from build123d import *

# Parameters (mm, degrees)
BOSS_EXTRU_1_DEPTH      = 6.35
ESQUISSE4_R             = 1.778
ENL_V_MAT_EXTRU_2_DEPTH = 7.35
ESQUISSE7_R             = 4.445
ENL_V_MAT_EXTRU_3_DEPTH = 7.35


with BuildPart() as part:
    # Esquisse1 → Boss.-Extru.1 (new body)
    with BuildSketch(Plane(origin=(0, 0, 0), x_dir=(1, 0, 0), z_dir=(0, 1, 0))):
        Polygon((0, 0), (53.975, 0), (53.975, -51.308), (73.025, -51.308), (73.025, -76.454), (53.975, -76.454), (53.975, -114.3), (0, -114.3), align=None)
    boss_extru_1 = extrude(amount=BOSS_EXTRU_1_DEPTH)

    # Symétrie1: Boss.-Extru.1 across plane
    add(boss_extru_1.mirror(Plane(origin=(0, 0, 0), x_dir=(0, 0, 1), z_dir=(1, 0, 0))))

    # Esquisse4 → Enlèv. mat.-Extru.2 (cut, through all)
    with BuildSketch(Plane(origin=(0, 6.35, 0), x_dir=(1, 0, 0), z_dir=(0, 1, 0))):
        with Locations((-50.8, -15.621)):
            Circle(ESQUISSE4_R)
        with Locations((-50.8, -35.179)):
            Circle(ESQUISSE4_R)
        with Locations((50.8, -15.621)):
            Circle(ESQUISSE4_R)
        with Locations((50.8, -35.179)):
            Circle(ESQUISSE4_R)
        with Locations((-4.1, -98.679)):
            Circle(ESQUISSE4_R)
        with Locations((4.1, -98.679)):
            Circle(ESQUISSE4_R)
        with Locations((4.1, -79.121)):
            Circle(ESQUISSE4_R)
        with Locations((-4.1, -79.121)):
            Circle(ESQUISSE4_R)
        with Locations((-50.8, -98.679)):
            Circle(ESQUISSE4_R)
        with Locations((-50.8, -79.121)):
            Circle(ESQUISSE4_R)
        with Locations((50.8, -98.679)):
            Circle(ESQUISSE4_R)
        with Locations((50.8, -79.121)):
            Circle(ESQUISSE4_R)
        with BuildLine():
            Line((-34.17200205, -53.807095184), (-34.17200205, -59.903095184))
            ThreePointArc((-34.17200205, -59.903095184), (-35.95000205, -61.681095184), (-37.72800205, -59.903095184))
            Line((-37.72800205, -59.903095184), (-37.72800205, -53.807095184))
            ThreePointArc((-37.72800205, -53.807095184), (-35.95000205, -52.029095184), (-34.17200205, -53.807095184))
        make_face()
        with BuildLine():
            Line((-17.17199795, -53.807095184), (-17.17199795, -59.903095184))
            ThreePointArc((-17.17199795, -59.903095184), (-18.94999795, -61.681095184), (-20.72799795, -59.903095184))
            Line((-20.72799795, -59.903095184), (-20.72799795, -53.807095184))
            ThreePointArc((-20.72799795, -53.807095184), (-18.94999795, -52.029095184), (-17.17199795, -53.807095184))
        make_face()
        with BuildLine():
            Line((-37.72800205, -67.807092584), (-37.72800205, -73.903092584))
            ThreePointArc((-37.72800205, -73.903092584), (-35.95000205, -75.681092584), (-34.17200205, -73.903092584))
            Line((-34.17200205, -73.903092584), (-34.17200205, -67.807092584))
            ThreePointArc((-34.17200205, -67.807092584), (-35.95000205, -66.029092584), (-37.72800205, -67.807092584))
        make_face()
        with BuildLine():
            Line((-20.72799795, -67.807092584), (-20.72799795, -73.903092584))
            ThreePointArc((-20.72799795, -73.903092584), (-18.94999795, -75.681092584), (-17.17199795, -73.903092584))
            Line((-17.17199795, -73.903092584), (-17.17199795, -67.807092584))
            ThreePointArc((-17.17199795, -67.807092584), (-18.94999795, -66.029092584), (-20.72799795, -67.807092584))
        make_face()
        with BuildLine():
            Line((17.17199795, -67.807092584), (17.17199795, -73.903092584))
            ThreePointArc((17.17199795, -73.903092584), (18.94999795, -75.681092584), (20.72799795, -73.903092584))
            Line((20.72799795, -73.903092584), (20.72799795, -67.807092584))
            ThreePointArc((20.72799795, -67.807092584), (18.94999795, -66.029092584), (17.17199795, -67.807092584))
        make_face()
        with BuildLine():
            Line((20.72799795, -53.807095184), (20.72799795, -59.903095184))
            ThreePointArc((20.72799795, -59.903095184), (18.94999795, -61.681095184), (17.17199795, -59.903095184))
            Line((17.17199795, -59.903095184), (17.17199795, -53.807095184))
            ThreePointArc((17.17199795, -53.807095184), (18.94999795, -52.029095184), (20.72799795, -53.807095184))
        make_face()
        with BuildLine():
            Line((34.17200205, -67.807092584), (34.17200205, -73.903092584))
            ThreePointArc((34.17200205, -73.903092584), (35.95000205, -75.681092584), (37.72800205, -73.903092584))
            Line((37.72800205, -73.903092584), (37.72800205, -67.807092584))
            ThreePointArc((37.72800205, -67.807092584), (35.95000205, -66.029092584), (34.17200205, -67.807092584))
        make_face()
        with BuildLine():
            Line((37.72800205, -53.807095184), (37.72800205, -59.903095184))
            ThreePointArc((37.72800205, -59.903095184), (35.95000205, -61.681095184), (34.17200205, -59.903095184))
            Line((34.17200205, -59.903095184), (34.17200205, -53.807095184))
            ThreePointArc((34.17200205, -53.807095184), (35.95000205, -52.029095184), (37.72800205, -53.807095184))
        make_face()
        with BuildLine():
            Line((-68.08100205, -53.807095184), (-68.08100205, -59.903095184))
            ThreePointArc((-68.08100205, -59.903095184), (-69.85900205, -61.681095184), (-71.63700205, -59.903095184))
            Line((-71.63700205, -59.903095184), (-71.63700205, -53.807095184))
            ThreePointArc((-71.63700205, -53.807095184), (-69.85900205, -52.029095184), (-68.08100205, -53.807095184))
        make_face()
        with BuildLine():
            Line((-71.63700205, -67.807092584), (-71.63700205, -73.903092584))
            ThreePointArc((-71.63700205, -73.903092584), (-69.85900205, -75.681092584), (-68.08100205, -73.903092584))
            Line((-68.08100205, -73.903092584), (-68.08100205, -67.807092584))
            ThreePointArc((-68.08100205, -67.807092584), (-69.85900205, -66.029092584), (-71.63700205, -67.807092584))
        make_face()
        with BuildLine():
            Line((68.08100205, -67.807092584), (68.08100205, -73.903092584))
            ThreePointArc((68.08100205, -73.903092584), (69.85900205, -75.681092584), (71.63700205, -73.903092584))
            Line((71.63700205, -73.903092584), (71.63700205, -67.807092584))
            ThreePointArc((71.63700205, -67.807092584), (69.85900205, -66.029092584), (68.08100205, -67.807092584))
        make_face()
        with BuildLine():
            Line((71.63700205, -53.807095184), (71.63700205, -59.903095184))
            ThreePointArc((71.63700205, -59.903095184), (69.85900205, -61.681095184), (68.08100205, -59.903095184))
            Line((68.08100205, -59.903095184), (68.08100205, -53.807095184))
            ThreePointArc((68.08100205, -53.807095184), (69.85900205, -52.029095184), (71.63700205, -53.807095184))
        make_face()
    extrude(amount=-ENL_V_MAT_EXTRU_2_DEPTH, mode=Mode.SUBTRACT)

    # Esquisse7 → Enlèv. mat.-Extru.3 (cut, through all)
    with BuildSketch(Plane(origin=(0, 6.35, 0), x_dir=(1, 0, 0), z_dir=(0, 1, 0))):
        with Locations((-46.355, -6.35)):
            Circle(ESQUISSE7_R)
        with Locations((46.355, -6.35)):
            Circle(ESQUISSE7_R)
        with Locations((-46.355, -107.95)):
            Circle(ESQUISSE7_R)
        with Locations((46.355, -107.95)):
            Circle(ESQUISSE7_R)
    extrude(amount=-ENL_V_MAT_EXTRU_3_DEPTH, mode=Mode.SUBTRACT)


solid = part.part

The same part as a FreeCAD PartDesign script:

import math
import FreeCAD as App
import Part
import Sketcher
from FreeCAD import Vector
Q = App.Units.Quantity


def add_polygon(sketch, points):
    """Adds a closed chain of lines whose ends are joined by coincident constraints."""
    first, n = sketch.GeometryCount, len(points)
    for a, b in zip(points, points[1:] + points[:1]):
        sketch.addGeometry(Part.LineSegment(App.Vector(*a, 0), App.Vector(*b, 0)), False)
    for i in range(n):
        sketch.addConstraint(Sketcher.Constraint("Coincident", first + i, 2, first + (i + 1) % n, 1))

doc = App.newDocument("Part")
body = doc.addObject("PartDesign::Body", "Body")

sketch1 = body.newObject("Sketcher::SketchObject", "Sketch")
sketch1.AttachmentSupport = (doc.getObject("XZ_Plane"), [""])
sketch1.MapMode = "FlatFace"
add_polygon(sketch1, [(54, 0), (0, 0), (0, 114), (54, 114), (54, 76), (73, 76), (73, 51), (54, 51)])
sketch1.addConstraint(Sketcher.Constraint("Horizontal", 0))
sketch1.addConstraint(Sketcher.Constraint("Vertical", 1))
sketch1.addConstraint(Sketcher.Constraint("Horizontal", 2))
sketch1.addConstraint(Sketcher.Constraint("Vertical", 3))
sketch1.addConstraint(Sketcher.Constraint("Horizontal", 4))
sketch1.addConstraint(Sketcher.Constraint("Vertical", 5))
sketch1.addConstraint(Sketcher.Constraint("Horizontal", 6))
sketch1.addConstraint(Sketcher.Constraint("Vertical", 7))
sketch1.addConstraint(Sketcher.Constraint("Coincident", 0, 2, -1, 1))
sketch1.addConstraint(Sketcher.Constraint("Vertical", 3, 2, 6, 2))
sketch1.addConstraint(Sketcher.Constraint("DistanceY", 1, 1, 1, 2, Q("4.5 in")))
sketch1.addConstraint(Sketcher.Constraint("DistanceX", 4, 1, 4, 2, Q("0.75 in")))
sketch1.addConstraint(Sketcher.Constraint("DistanceY", 3, 2, 3, 1, Q("1.49 in")))
sketch1.addConstraint(Sketcher.Constraint("DistanceY", 5, 2, 5, 1, Q("0.99 in")))
sketch1.addConstraint(Sketcher.Constraint("DistanceX", 0, 2, 0, 1, Q("2.125 in")))
pad1 = body.newObject("PartDesign::Pad", "Pad")
pad1.Profile = sketch1
pad1.Length = Q("0.25 in")
pad1.Reversed = True
doc.recompute()

mirrored = body.newObject("PartDesign::Mirrored", "Mirrored")
mirrored.Originals = [pad1]
mirrored.MirrorPlane = (doc.getObject("YZ_Plane"), [""])
body.Tip = mirrored

sketch2 = body.newObject("Sketcher::SketchObject", "Sketch001")
sketch2.AttachmentSupport = (doc.getObject("XZ_Plane"), [""])
sketch2.MapMode = "FlatFace"
sketch2.AttachmentOffset = App.Placement(Vector(0, 0, -0.25 * 25.4), App.Rotation())
sketch2.addGeometry(Part.Circle(Vector(-50.8, 15.6, 0), Vector(0, 0, 1), 1.8), False)
sketch2.addGeometry(Part.Circle(Vector(-50.8, 35.2, 0), Vector(0, 0, 1), 1.8), False)
sketch2.addGeometry(Part.Circle(Vector(50.8, 15.6, 0), Vector(0, 0, 1), 1.8), False)
sketch2.addGeometry(Part.Circle(Vector(50.8, 35.2, 0), Vector(0, 0, 1), 1.8), False)
sketch2.addGeometry(Part.Circle(Vector(-4.1, 98.7, 0), Vector(0, 0, 1), 1.8), False)
sketch2.addGeometry(Part.Circle(Vector(4.1, 98.7, 0), Vector(0, 0, 1), 1.8), False)
sketch2.addGeometry(Part.Circle(Vector(4.1, 79.1, 0), Vector(0, 0, 1), 1.8), False)
sketch2.addGeometry(Part.Circle(Vector(-4.1, 79.1, 0), Vector(0, 0, 1), 1.8), False)
sketch2.addGeometry(Part.Circle(Vector(-50.8, 98.7, 0), Vector(0, 0, 1), 1.8), False)
sketch2.addGeometry(Part.Circle(Vector(-50.8, 79.1, 0), Vector(0, 0, 1), 1.8), False)
sketch2.addGeometry(Part.Circle(Vector(50.8, 98.7, 0), Vector(0, 0, 1), 1.8), False)
sketch2.addGeometry(Part.Circle(Vector(50.8, 79.1, 0), Vector(0, 0, 1), 1.8), False)
sketch2.addGeometry(Part.LineSegment(Vector(-34.2, 59.9, 0), Vector(-34.2, 53.8, 0)), False)
sketch2.addGeometry(Part.ArcOfCircle(Part.Circle(Vector(-36, 53.8, 0), Vector(0, 0, 1), 1.8), math.radians(180), math.radians(360)), False)
sketch2.addGeometry(Part.LineSegment(Vector(-37.7, 53.8, 0), Vector(-37.7, 59.9, 0)), False)
sketch2.addGeometry(Part.ArcOfCircle(Part.Circle(Vector(-36, 59.9, 0), Vector(0, 0, 1), 1.8), math.radians(0), math.radians(180)), False)
sketch2.addGeometry(Part.LineSegment(Vector(-17.2, 59.9, 0), Vector(-17.2, 53.8, 0)), False)
sketch2.addGeometry(Part.ArcOfCircle(Part.Circle(Vector(-18.9, 53.8, 0), Vector(0, 0, 1), 1.8), math.radians(180), math.radians(360)), False)
sketch2.addGeometry(Part.LineSegment(Vector(-20.7, 53.8, 0), Vector(-20.7, 59.9, 0)), False)
sketch2.addGeometry(Part.ArcOfCircle(Part.Circle(Vector(-18.9, 59.9, 0), Vector(0, 0, 1), 1.8), math.radians(0), math.radians(180)), False)
sketch2.addGeometry(Part.LineSegment(Vector(-37.7, 67.8, 0), Vector(-37.7, 73.9, 0)), False)
sketch2.addGeometry(Part.ArcOfCircle(Part.Circle(Vector(-36, 73.9, 0), Vector(0, 0, 1), 1.8), math.radians(0), math.radians(180)), False)
sketch2.addGeometry(Part.LineSegment(Vector(-34.2, 73.9, 0), Vector(-34.2, 67.8, 0)), False)
sketch2.addGeometry(Part.ArcOfCircle(Part.Circle(Vector(-36, 67.8, 0), Vector(0, 0, 1), 1.8), math.radians(180), math.radians(360)), False)
sketch2.addGeometry(Part.LineSegment(Vector(-20.7, 67.8, 0), Vector(-20.7, 73.9, 0)), False)
sketch2.addGeometry(Part.ArcOfCircle(Part.Circle(Vector(-18.9, 73.9, 0), Vector(0, 0, 1), 1.8), math.radians(0), math.radians(180)), False)
sketch2.addGeometry(Part.LineSegment(Vector(-17.2, 73.9, 0), Vector(-17.2, 67.8, 0)), False)
sketch2.addGeometry(Part.ArcOfCircle(Part.Circle(Vector(-18.9, 67.8, 0), Vector(0, 0, 1), 1.8), math.radians(180), math.radians(360)), False)
sketch2.addGeometry(Part.LineSegment(Vector(17.2, 67.8, 0), Vector(17.2, 73.9, 0)), False)
sketch2.addGeometry(Part.ArcOfCircle(Part.Circle(Vector(18.9, 73.9, 0), Vector(0, 0, 1), 1.8), math.radians(0), math.radians(180)), False)
sketch2.addGeometry(Part.LineSegment(Vector(20.7, 73.9, 0), Vector(20.7, 67.8, 0)), False)
sketch2.addGeometry(Part.ArcOfCircle(Part.Circle(Vector(18.9, 67.8, 0), Vector(0, 0, 1), 1.8), math.radians(180), math.radians(360)), False)
sketch2.addGeometry(Part.LineSegment(Vector(20.7, 59.9, 0), Vector(20.7, 53.8, 0)), False)
sketch2.addGeometry(Part.ArcOfCircle(Part.Circle(Vector(18.9, 53.8, 0), Vector(0, 0, 1), 1.8), math.radians(180), math.radians(360)), False)
sketch2.addGeometry(Part.LineSegment(Vector(17.2, 53.8, 0), Vector(17.2, 59.9, 0)), False)
sketch2.addGeometry(Part.ArcOfCircle(Part.Circle(Vector(18.9, 59.9, 0), Vector(0, 0, 1), 1.8), math.radians(0), math.radians(180)), False)
sketch2.addGeometry(Part.LineSegment(Vector(34.2, 67.8, 0), Vector(34.2, 73.9, 0)), False)
sketch2.addGeometry(Part.ArcOfCircle(Part.Circle(Vector(36, 73.9, 0), Vector(0, 0, 1), 1.8), math.radians(0), math.radians(180)), False)
sketch2.addGeometry(Part.LineSegment(Vector(37.7, 73.9, 0), Vector(37.7, 67.8, 0)), False)
sketch2.addGeometry(Part.ArcOfCircle(Part.Circle(Vector(36, 67.8, 0), Vector(0, 0, 1), 1.8), math.radians(180), math.radians(360)), False)
sketch2.addGeometry(Part.LineSegment(Vector(37.7, 59.9, 0), Vector(37.7, 53.8, 0)), False)
sketch2.addGeometry(Part.ArcOfCircle(Part.Circle(Vector(36, 53.8, 0), Vector(0, 0, 1), 1.8), math.radians(180), math.radians(360)), False)
sketch2.addGeometry(Part.LineSegment(Vector(34.2, 53.8, 0), Vector(34.2, 59.9, 0)), False)
sketch2.addGeometry(Part.ArcOfCircle(Part.Circle(Vector(36, 59.9, 0), Vector(0, 0, 1), 1.8), math.radians(0), math.radians(180)), False)
sketch2.addGeometry(Part.LineSegment(Vector(-68.1, 59.9, 0), Vector(-68.1, 53.8, 0)), False)
sketch2.addGeometry(Part.ArcOfCircle(Part.Circle(Vector(-69.9, 53.8, 0), Vector(0, 0, 1), 1.8), math.radians(180), math.radians(360)), False)
sketch2.addGeometry(Part.LineSegment(Vector(-71.6, 53.8, 0), Vector(-71.6, 59.9, 0)), False)
sketch2.addGeometry(Part.ArcOfCircle(Part.Circle(Vector(-69.9, 59.9, 0), Vector(0, 0, 1), 1.8), math.radians(0), math.radians(180)), False)
sketch2.addGeometry(Part.LineSegment(Vector(-71.6, 67.8, 0), Vector(-71.6, 73.9, 0)), False)
sketch2.addGeometry(Part.ArcOfCircle(Part.Circle(Vector(-69.9, 73.9, 0), Vector(0, 0, 1), 1.8), math.radians(0), math.radians(180)), False)
sketch2.addGeometry(Part.LineSegment(Vector(-68.1, 73.9, 0), Vector(-68.1, 67.8, 0)), False)
sketch2.addGeometry(Part.ArcOfCircle(Part.Circle(Vector(-69.9, 67.8, 0), Vector(0, 0, 1), 1.8), math.radians(180), math.radians(360)), False)
sketch2.addGeometry(Part.LineSegment(Vector(68.1, 67.8, 0), Vector(68.1, 73.9, 0)), False)
sketch2.addGeometry(Part.ArcOfCircle(Part.Circle(Vector(69.9, 73.9, 0), Vector(0, 0, 1), 1.8), math.radians(0), math.radians(180)), False)
sketch2.addGeometry(Part.LineSegment(Vector(71.6, 73.9, 0), Vector(71.6, 67.8, 0)), False)
sketch2.addGeometry(Part.ArcOfCircle(Part.Circle(Vector(69.9, 67.8, 0), Vector(0, 0, 1), 1.8), math.radians(180), math.radians(360)), False)
sketch2.addGeometry(Part.LineSegment(Vector(71.6, 59.9, 0), Vector(71.6, 53.8, 0)), False)
sketch2.addGeometry(Part.ArcOfCircle(Part.Circle(Vector(69.9, 53.8, 0), Vector(0, 0, 1), 1.8), math.radians(180), math.radians(360)), False)
sketch2.addGeometry(Part.LineSegment(Vector(68.1, 53.8, 0), Vector(68.1, 59.9, 0)), False)
sketch2.addGeometry(Part.ArcOfCircle(Part.Circle(Vector(69.9, 59.9, 0), Vector(0, 0, 1), 1.8), math.radians(0), math.radians(180)), False)
sketch2.addConstraint(Sketcher.Constraint("Tangent", 12, 2, 13, 2))
sketch2.addConstraint(Sketcher.Constraint("Tangent", 13, 1, 14, 1))
sketch2.addConstraint(Sketcher.Constraint("Tangent", 14, 2, 15, 2))
sketch2.addConstraint(Sketcher.Constraint("Tangent", 15, 1, 12, 1))
sketch2.addConstraint(Sketcher.Constraint("Tangent", 16, 2, 17, 2))
sketch2.addConstraint(Sketcher.Constraint("Tangent", 17, 1, 18, 1))
sketch2.addConstraint(Sketcher.Constraint("Tangent", 18, 2, 19, 2))
sketch2.addConstraint(Sketcher.Constraint("Tangent", 19, 1, 16, 1))
sketch2.addConstraint(Sketcher.Constraint("Tangent", 20, 2, 21, 2))
sketch2.addConstraint(Sketcher.Constraint("Tangent", 21, 1, 22, 1))
sketch2.addConstraint(Sketcher.Constraint("Tangent", 22, 2, 23, 2))
sketch2.addConstraint(Sketcher.Constraint("Tangent", 23, 1, 20, 1))
sketch2.addConstraint(Sketcher.Constraint("Tangent", 24, 2, 25, 2))
sketch2.addConstraint(Sketcher.Constraint("Tangent", 25, 1, 26, 1))
sketch2.addConstraint(Sketcher.Constraint("Tangent", 26, 2, 27, 2))
sketch2.addConstraint(Sketcher.Constraint("Tangent", 27, 1, 24, 1))
sketch2.addConstraint(Sketcher.Constraint("Tangent", 28, 2, 29, 2))
sketch2.addConstraint(Sketcher.Constraint("Tangent", 29, 1, 30, 1))
sketch2.addConstraint(Sketcher.Constraint("Tangent", 30, 2, 31, 2))
sketch2.addConstraint(Sketcher.Constraint("Tangent", 31, 1, 28, 1))
sketch2.addConstraint(Sketcher.Constraint("Tangent", 32, 2, 33, 2))
sketch2.addConstraint(Sketcher.Constraint("Tangent", 33, 1, 34, 1))
sketch2.addConstraint(Sketcher.Constraint("Tangent", 34, 2, 35, 2))
sketch2.addConstraint(Sketcher.Constraint("Tangent", 35, 1, 32, 1))
sketch2.addConstraint(Sketcher.Constraint("Tangent", 36, 2, 37, 2))
sketch2.addConstraint(Sketcher.Constraint("Tangent", 37, 1, 38, 1))
sketch2.addConstraint(Sketcher.Constraint("Tangent", 38, 2, 39, 2))
sketch2.addConstraint(Sketcher.Constraint("Tangent", 39, 1, 36, 1))
sketch2.addConstraint(Sketcher.Constraint("Tangent", 40, 2, 41, 2))
sketch2.addConstraint(Sketcher.Constraint("Tangent", 41, 1, 42, 1))
sketch2.addConstraint(Sketcher.Constraint("Tangent", 42, 2, 43, 2))
sketch2.addConstraint(Sketcher.Constraint("Tangent", 43, 1, 40, 1))
sketch2.addConstraint(Sketcher.Constraint("Tangent", 44, 2, 45, 2))
sketch2.addConstraint(Sketcher.Constraint("Tangent", 45, 1, 46, 1))
sketch2.addConstraint(Sketcher.Constraint("Tangent", 46, 2, 47, 2))
sketch2.addConstraint(Sketcher.Constraint("Tangent", 47, 1, 44, 1))
sketch2.addConstraint(Sketcher.Constraint("Tangent", 48, 2, 49, 2))
sketch2.addConstraint(Sketcher.Constraint("Tangent", 49, 1, 50, 1))
sketch2.addConstraint(Sketcher.Constraint("Tangent", 50, 2, 51, 2))
sketch2.addConstraint(Sketcher.Constraint("Tangent", 51, 1, 48, 1))
sketch2.addConstraint(Sketcher.Constraint("Tangent", 52, 2, 53, 2))
sketch2.addConstraint(Sketcher.Constraint("Tangent", 53, 1, 54, 1))
sketch2.addConstraint(Sketcher.Constraint("Tangent", 54, 2, 55, 2))
sketch2.addConstraint(Sketcher.Constraint("Tangent", 55, 1, 52, 1))
sketch2.addConstraint(Sketcher.Constraint("Tangent", 56, 2, 57, 2))
sketch2.addConstraint(Sketcher.Constraint("Tangent", 57, 1, 58, 1))
sketch2.addConstraint(Sketcher.Constraint("Tangent", 58, 2, 59, 2))
sketch2.addConstraint(Sketcher.Constraint("Tangent", 59, 1, 56, 1))
sketch2.addConstraint(Sketcher.Constraint("Vertical", 12))
sketch2.addConstraint(Sketcher.Constraint("Vertical", 14))
sketch2.addConstraint(Sketcher.Constraint("Vertical", 16))
sketch2.addConstraint(Sketcher.Constraint("Vertical", 18))
sketch2.addConstraint(Sketcher.Constraint("Vertical", 20))
sketch2.addConstraint(Sketcher.Constraint("Vertical", 22))
sketch2.addConstraint(Sketcher.Constraint("Vertical", 24))
sketch2.addConstraint(Sketcher.Constraint("Vertical", 26))
sketch2.addConstraint(Sketcher.Constraint("Vertical", 28))
sketch2.addConstraint(Sketcher.Constraint("Vertical", 30))
sketch2.addConstraint(Sketcher.Constraint("Vertical", 32))
sketch2.addConstraint(Sketcher.Constraint("Vertical", 34))
sketch2.addConstraint(Sketcher.Constraint("Vertical", 36))
sketch2.addConstraint(Sketcher.Constraint("Vertical", 38))
sketch2.addConstraint(Sketcher.Constraint("Vertical", 40))
sketch2.addConstraint(Sketcher.Constraint("Vertical", 42))
sketch2.addConstraint(Sketcher.Constraint("Vertical", 44))
sketch2.addConstraint(Sketcher.Constraint("Vertical", 46))
sketch2.addConstraint(Sketcher.Constraint("Vertical", 48))
sketch2.addConstraint(Sketcher.Constraint("Vertical", 50))
sketch2.addConstraint(Sketcher.Constraint("Vertical", 52))
sketch2.addConstraint(Sketcher.Constraint("Vertical", 54))
sketch2.addConstraint(Sketcher.Constraint("Vertical", 56))
sketch2.addConstraint(Sketcher.Constraint("Vertical", 58))
sketch2.addConstraint(Sketcher.Constraint("Equal", 0, 1))
sketch2.addConstraint(Sketcher.Constraint("Equal", 1, 2))
sketch2.addConstraint(Sketcher.Constraint("Equal", 2, 3))
sketch2.addConstraint(Sketcher.Constraint("Equal", 3, 4))
sketch2.addConstraint(Sketcher.Constraint("Equal", 4, 5))
sketch2.addConstraint(Sketcher.Constraint("Equal", 5, 6))
sketch2.addConstraint(Sketcher.Constraint("Equal", 6, 7))
sketch2.addConstraint(Sketcher.Constraint("Equal", 7, 8))
sketch2.addConstraint(Sketcher.Constraint("Equal", 8, 9))
sketch2.addConstraint(Sketcher.Constraint("Equal", 9, 10))
sketch2.addConstraint(Sketcher.Constraint("Equal", 10, 11))
sketch2.addConstraint(Sketcher.Constraint("Equal", 11, 13))
sketch2.addConstraint(Sketcher.Constraint("Equal", 15, 17))
sketch2.addConstraint(Sketcher.Constraint("Equal", 19, 21))
sketch2.addConstraint(Sketcher.Constraint("Equal", 23, 25))
sketch2.addConstraint(Sketcher.Constraint("Equal", 27, 29))
sketch2.addConstraint(Sketcher.Constraint("Equal", 31, 33))
sketch2.addConstraint(Sketcher.Constraint("Equal", 35, 37))
sketch2.addConstraint(Sketcher.Constraint("Equal", 39, 41))
sketch2.addConstraint(Sketcher.Constraint("Equal", 43, 45))
sketch2.addConstraint(Sketcher.Constraint("Equal", 47, 49))
sketch2.addConstraint(Sketcher.Constraint("Equal", 51, 53))
sketch2.addConstraint(Sketcher.Constraint("Equal", 55, 57))
sketch2.addConstraint(Sketcher.Constraint("Symmetric", 0, 3, 2, 3, -2))
sketch2.addConstraint(Sketcher.Constraint("Symmetric", 1, 3, 3, 3, -2))
sketch2.addConstraint(Sketcher.Constraint("Symmetric", 4, 3, 5, 3, -2))
sketch2.addConstraint(Sketcher.Constraint("Symmetric", 6, 3, 7, 3, -2))
sketch2.addConstraint(Sketcher.Constraint("Symmetric", 8, 3, 10, 3, -2))
sketch2.addConstraint(Sketcher.Constraint("Symmetric", 9, 3, 11, 3, -2))
sketch2.addConstraint(Sketcher.Constraint("Symmetric", 25, 3, 29, 3, -2))
sketch2.addConstraint(Sketcher.Constraint("Symmetric", 17, 3, 33, 3, -2))
sketch2.addConstraint(Sketcher.Constraint("Symmetric", 21, 3, 37, 3, -2))
sketch2.addConstraint(Sketcher.Constraint("Symmetric", 13, 3, 41, 3, -2))
sketch2.addConstraint(Sketcher.Constraint("Symmetric", 49, 3, 53, 3, -2))
sketch2.addConstraint(Sketcher.Constraint("Symmetric", 45, 3, 57, 3, -2))
sketch2.addConstraint(Sketcher.Constraint("Horizontal", 5, 3, 8, 3))
sketch2.addConstraint(Sketcher.Constraint("Horizontal", 7, 3, 9, 3))
sketch2.addConstraint(Sketcher.Constraint("Horizontal", 13, 3, 17, 3))
sketch2.addConstraint(Sketcher.Constraint("Horizontal", 15, 3, 19, 3))
sketch2.addConstraint(Sketcher.Constraint("Horizontal", 21, 3, 25, 3))
sketch2.addConstraint(Sketcher.Constraint("Horizontal", 23, 3, 27, 3))
sketch2.addConstraint(Sketcher.Constraint("Horizontal", 27, 3, 31, 3))
sketch2.addConstraint(Sketcher.Constraint("Horizontal", 19, 3, 35, 3))
sketch2.addConstraint(Sketcher.Constraint("Horizontal", 31, 3, 39, 3))
sketch2.addConstraint(Sketcher.Constraint("Horizontal", 35, 3, 43, 3))
sketch2.addConstraint(Sketcher.Constraint("Horizontal", 41, 3, 45, 3))
sketch2.addConstraint(Sketcher.Constraint("Horizontal", 43, 3, 47, 3))
sketch2.addConstraint(Sketcher.Constraint("Horizontal", 37, 3, 49, 3))
sketch2.addConstraint(Sketcher.Constraint("Horizontal", 39, 3, 51, 3))
sketch2.addConstraint(Sketcher.Constraint("Horizontal", 51, 3, 55, 3))
sketch2.addConstraint(Sketcher.Constraint("Horizontal", 47, 3, 59, 3))
sketch2.addConstraint(Sketcher.Constraint("Vertical", 0, 3, 1, 3))
sketch2.addConstraint(Sketcher.Constraint("Vertical", 5, 3, 6, 3))
sketch2.addConstraint(Sketcher.Constraint("Vertical", 1, 3, 8, 3))
sketch2.addConstraint(Sketcher.Constraint("Vertical", 8, 3, 9, 3))
sketch2.addConstraint(Sketcher.Constraint("Vertical", 15, 3, 21, 3))
sketch2.addConstraint(Sketcher.Constraint("Vertical", 19, 3, 25, 3))
sketch2.addConstraint(Sketcher.Constraint("Vertical", 47, 3, 49, 3))
sketch2.addConstraint(Sketcher.Constraint("Equal", 18, 20))
sketch2.addConstraint(Sketcher.Constraint("Diameter", 0, Q("0.14 in")))
sketch2.addConstraint(Sketcher.Constraint("DistanceX", 0, 3, -1, 1, Q("2 in")))
sketch2.addConstraint(Sketcher.Constraint("DistanceY", 12, 2, 12, 1, Q("0.24 in")))
sketch2.addConstraint(Sketcher.Constraint("DistanceY", -1, 1, 0, 3, Q("0.615 in")))
sketch2.addConstraint(Sketcher.Constraint("DistanceY", -1, 1, 1, 3, Q("1.385 in")))
sketch2.addConstraint(Sketcher.Constraint("DistanceY", -1, 1, 4, 3, Q("3.885 in")))
sketch2.addConstraint(Sketcher.Constraint("DistanceY", -1, 1, 6, 3, Q("3.115 in")))
sketch2.addConstraint(Sketcher.Constraint("DistanceX", 4, 3, -1, 1, Q("4.1 mm")))
sketch2.addConstraint(Sketcher.Constraint("DistanceX", 13, 3, -1, 1, Q("35.950002 mm")))
sketch2.addConstraint(Sketcher.Constraint("DistanceY", -1, 1, 13, 3, Q("53.807095 mm")))
sketch2.addConstraint(Sketcher.Constraint("DistanceX", 17, 3, -1, 1, Q("18.949998 mm")))
sketch2.addConstraint(Sketcher.Constraint("DistanceY", -1, 1, 21, 3, Q("73.903093 mm")))
sketch2.addConstraint(Sketcher.Constraint("DistanceX", 45, 3, -1, 1, Q("69.859002 mm")))
pocket1 = body.newObject("PartDesign::Pocket", "Pocket")
pocket1.Profile = sketch2
pocket1.Type = "ThroughAll"
pocket1.Reversed = True

sketch3 = body.newObject("Sketcher::SketchObject", "Sketch002")
sketch3.AttachmentSupport = (doc.getObject("XZ_Plane"), [""])
sketch3.MapMode = "FlatFace"
sketch3.AttachmentOffset = App.Placement(Vector(0, 0, -0.25 * 25.4), App.Rotation())
sketch3.addGeometry(Part.Circle(Vector(-46.4, 6.3, 0), Vector(0, 0, 1), 4.4), False)
sketch3.addGeometry(Part.Circle(Vector(46.4, 6.3, 0), Vector(0, 0, 1), 4.4), False)
sketch3.addGeometry(Part.Circle(Vector(-46.4, 108, 0), Vector(0, 0, 1), 4.4), False)
sketch3.addGeometry(Part.Circle(Vector(46.4, 108, 0), Vector(0, 0, 1), 4.4), False)
sketch3.addConstraint(Sketcher.Constraint("Equal", 0, 1))
sketch3.addConstraint(Sketcher.Constraint("Equal", 1, 2))
sketch3.addConstraint(Sketcher.Constraint("Equal", 2, 3))
sketch3.addConstraint(Sketcher.Constraint("Symmetric", 0, 3, 1, 3, -2))
sketch3.addConstraint(Sketcher.Constraint("Symmetric", 2, 3, 3, 3, -2))
sketch3.addConstraint(Sketcher.Constraint("Vertical", 0, 3, 2, 3))
sketch3.addConstraint(Sketcher.Constraint("Diameter", 0, Q("0.35 in")))
sketch3.addConstraint(Sketcher.Constraint("DistanceY", 0, 3, 2, 3, Q("4 in")))
sketch3.addConstraint(Sketcher.Constraint("DistanceY", -1, 1, 0, 3, Q("0.25 in")))
sketch3.addConstraint(Sketcher.Constraint("DistanceX", 0, 3, 1, 3, Q("3.65 in")))
pocket2 = body.newObject("PartDesign::Pocket", "Pocket001")
pocket2.Profile = sketch3
pocket2.Type = "ThroughAll"
pocket2.Reversed = True

doc.recompute()
